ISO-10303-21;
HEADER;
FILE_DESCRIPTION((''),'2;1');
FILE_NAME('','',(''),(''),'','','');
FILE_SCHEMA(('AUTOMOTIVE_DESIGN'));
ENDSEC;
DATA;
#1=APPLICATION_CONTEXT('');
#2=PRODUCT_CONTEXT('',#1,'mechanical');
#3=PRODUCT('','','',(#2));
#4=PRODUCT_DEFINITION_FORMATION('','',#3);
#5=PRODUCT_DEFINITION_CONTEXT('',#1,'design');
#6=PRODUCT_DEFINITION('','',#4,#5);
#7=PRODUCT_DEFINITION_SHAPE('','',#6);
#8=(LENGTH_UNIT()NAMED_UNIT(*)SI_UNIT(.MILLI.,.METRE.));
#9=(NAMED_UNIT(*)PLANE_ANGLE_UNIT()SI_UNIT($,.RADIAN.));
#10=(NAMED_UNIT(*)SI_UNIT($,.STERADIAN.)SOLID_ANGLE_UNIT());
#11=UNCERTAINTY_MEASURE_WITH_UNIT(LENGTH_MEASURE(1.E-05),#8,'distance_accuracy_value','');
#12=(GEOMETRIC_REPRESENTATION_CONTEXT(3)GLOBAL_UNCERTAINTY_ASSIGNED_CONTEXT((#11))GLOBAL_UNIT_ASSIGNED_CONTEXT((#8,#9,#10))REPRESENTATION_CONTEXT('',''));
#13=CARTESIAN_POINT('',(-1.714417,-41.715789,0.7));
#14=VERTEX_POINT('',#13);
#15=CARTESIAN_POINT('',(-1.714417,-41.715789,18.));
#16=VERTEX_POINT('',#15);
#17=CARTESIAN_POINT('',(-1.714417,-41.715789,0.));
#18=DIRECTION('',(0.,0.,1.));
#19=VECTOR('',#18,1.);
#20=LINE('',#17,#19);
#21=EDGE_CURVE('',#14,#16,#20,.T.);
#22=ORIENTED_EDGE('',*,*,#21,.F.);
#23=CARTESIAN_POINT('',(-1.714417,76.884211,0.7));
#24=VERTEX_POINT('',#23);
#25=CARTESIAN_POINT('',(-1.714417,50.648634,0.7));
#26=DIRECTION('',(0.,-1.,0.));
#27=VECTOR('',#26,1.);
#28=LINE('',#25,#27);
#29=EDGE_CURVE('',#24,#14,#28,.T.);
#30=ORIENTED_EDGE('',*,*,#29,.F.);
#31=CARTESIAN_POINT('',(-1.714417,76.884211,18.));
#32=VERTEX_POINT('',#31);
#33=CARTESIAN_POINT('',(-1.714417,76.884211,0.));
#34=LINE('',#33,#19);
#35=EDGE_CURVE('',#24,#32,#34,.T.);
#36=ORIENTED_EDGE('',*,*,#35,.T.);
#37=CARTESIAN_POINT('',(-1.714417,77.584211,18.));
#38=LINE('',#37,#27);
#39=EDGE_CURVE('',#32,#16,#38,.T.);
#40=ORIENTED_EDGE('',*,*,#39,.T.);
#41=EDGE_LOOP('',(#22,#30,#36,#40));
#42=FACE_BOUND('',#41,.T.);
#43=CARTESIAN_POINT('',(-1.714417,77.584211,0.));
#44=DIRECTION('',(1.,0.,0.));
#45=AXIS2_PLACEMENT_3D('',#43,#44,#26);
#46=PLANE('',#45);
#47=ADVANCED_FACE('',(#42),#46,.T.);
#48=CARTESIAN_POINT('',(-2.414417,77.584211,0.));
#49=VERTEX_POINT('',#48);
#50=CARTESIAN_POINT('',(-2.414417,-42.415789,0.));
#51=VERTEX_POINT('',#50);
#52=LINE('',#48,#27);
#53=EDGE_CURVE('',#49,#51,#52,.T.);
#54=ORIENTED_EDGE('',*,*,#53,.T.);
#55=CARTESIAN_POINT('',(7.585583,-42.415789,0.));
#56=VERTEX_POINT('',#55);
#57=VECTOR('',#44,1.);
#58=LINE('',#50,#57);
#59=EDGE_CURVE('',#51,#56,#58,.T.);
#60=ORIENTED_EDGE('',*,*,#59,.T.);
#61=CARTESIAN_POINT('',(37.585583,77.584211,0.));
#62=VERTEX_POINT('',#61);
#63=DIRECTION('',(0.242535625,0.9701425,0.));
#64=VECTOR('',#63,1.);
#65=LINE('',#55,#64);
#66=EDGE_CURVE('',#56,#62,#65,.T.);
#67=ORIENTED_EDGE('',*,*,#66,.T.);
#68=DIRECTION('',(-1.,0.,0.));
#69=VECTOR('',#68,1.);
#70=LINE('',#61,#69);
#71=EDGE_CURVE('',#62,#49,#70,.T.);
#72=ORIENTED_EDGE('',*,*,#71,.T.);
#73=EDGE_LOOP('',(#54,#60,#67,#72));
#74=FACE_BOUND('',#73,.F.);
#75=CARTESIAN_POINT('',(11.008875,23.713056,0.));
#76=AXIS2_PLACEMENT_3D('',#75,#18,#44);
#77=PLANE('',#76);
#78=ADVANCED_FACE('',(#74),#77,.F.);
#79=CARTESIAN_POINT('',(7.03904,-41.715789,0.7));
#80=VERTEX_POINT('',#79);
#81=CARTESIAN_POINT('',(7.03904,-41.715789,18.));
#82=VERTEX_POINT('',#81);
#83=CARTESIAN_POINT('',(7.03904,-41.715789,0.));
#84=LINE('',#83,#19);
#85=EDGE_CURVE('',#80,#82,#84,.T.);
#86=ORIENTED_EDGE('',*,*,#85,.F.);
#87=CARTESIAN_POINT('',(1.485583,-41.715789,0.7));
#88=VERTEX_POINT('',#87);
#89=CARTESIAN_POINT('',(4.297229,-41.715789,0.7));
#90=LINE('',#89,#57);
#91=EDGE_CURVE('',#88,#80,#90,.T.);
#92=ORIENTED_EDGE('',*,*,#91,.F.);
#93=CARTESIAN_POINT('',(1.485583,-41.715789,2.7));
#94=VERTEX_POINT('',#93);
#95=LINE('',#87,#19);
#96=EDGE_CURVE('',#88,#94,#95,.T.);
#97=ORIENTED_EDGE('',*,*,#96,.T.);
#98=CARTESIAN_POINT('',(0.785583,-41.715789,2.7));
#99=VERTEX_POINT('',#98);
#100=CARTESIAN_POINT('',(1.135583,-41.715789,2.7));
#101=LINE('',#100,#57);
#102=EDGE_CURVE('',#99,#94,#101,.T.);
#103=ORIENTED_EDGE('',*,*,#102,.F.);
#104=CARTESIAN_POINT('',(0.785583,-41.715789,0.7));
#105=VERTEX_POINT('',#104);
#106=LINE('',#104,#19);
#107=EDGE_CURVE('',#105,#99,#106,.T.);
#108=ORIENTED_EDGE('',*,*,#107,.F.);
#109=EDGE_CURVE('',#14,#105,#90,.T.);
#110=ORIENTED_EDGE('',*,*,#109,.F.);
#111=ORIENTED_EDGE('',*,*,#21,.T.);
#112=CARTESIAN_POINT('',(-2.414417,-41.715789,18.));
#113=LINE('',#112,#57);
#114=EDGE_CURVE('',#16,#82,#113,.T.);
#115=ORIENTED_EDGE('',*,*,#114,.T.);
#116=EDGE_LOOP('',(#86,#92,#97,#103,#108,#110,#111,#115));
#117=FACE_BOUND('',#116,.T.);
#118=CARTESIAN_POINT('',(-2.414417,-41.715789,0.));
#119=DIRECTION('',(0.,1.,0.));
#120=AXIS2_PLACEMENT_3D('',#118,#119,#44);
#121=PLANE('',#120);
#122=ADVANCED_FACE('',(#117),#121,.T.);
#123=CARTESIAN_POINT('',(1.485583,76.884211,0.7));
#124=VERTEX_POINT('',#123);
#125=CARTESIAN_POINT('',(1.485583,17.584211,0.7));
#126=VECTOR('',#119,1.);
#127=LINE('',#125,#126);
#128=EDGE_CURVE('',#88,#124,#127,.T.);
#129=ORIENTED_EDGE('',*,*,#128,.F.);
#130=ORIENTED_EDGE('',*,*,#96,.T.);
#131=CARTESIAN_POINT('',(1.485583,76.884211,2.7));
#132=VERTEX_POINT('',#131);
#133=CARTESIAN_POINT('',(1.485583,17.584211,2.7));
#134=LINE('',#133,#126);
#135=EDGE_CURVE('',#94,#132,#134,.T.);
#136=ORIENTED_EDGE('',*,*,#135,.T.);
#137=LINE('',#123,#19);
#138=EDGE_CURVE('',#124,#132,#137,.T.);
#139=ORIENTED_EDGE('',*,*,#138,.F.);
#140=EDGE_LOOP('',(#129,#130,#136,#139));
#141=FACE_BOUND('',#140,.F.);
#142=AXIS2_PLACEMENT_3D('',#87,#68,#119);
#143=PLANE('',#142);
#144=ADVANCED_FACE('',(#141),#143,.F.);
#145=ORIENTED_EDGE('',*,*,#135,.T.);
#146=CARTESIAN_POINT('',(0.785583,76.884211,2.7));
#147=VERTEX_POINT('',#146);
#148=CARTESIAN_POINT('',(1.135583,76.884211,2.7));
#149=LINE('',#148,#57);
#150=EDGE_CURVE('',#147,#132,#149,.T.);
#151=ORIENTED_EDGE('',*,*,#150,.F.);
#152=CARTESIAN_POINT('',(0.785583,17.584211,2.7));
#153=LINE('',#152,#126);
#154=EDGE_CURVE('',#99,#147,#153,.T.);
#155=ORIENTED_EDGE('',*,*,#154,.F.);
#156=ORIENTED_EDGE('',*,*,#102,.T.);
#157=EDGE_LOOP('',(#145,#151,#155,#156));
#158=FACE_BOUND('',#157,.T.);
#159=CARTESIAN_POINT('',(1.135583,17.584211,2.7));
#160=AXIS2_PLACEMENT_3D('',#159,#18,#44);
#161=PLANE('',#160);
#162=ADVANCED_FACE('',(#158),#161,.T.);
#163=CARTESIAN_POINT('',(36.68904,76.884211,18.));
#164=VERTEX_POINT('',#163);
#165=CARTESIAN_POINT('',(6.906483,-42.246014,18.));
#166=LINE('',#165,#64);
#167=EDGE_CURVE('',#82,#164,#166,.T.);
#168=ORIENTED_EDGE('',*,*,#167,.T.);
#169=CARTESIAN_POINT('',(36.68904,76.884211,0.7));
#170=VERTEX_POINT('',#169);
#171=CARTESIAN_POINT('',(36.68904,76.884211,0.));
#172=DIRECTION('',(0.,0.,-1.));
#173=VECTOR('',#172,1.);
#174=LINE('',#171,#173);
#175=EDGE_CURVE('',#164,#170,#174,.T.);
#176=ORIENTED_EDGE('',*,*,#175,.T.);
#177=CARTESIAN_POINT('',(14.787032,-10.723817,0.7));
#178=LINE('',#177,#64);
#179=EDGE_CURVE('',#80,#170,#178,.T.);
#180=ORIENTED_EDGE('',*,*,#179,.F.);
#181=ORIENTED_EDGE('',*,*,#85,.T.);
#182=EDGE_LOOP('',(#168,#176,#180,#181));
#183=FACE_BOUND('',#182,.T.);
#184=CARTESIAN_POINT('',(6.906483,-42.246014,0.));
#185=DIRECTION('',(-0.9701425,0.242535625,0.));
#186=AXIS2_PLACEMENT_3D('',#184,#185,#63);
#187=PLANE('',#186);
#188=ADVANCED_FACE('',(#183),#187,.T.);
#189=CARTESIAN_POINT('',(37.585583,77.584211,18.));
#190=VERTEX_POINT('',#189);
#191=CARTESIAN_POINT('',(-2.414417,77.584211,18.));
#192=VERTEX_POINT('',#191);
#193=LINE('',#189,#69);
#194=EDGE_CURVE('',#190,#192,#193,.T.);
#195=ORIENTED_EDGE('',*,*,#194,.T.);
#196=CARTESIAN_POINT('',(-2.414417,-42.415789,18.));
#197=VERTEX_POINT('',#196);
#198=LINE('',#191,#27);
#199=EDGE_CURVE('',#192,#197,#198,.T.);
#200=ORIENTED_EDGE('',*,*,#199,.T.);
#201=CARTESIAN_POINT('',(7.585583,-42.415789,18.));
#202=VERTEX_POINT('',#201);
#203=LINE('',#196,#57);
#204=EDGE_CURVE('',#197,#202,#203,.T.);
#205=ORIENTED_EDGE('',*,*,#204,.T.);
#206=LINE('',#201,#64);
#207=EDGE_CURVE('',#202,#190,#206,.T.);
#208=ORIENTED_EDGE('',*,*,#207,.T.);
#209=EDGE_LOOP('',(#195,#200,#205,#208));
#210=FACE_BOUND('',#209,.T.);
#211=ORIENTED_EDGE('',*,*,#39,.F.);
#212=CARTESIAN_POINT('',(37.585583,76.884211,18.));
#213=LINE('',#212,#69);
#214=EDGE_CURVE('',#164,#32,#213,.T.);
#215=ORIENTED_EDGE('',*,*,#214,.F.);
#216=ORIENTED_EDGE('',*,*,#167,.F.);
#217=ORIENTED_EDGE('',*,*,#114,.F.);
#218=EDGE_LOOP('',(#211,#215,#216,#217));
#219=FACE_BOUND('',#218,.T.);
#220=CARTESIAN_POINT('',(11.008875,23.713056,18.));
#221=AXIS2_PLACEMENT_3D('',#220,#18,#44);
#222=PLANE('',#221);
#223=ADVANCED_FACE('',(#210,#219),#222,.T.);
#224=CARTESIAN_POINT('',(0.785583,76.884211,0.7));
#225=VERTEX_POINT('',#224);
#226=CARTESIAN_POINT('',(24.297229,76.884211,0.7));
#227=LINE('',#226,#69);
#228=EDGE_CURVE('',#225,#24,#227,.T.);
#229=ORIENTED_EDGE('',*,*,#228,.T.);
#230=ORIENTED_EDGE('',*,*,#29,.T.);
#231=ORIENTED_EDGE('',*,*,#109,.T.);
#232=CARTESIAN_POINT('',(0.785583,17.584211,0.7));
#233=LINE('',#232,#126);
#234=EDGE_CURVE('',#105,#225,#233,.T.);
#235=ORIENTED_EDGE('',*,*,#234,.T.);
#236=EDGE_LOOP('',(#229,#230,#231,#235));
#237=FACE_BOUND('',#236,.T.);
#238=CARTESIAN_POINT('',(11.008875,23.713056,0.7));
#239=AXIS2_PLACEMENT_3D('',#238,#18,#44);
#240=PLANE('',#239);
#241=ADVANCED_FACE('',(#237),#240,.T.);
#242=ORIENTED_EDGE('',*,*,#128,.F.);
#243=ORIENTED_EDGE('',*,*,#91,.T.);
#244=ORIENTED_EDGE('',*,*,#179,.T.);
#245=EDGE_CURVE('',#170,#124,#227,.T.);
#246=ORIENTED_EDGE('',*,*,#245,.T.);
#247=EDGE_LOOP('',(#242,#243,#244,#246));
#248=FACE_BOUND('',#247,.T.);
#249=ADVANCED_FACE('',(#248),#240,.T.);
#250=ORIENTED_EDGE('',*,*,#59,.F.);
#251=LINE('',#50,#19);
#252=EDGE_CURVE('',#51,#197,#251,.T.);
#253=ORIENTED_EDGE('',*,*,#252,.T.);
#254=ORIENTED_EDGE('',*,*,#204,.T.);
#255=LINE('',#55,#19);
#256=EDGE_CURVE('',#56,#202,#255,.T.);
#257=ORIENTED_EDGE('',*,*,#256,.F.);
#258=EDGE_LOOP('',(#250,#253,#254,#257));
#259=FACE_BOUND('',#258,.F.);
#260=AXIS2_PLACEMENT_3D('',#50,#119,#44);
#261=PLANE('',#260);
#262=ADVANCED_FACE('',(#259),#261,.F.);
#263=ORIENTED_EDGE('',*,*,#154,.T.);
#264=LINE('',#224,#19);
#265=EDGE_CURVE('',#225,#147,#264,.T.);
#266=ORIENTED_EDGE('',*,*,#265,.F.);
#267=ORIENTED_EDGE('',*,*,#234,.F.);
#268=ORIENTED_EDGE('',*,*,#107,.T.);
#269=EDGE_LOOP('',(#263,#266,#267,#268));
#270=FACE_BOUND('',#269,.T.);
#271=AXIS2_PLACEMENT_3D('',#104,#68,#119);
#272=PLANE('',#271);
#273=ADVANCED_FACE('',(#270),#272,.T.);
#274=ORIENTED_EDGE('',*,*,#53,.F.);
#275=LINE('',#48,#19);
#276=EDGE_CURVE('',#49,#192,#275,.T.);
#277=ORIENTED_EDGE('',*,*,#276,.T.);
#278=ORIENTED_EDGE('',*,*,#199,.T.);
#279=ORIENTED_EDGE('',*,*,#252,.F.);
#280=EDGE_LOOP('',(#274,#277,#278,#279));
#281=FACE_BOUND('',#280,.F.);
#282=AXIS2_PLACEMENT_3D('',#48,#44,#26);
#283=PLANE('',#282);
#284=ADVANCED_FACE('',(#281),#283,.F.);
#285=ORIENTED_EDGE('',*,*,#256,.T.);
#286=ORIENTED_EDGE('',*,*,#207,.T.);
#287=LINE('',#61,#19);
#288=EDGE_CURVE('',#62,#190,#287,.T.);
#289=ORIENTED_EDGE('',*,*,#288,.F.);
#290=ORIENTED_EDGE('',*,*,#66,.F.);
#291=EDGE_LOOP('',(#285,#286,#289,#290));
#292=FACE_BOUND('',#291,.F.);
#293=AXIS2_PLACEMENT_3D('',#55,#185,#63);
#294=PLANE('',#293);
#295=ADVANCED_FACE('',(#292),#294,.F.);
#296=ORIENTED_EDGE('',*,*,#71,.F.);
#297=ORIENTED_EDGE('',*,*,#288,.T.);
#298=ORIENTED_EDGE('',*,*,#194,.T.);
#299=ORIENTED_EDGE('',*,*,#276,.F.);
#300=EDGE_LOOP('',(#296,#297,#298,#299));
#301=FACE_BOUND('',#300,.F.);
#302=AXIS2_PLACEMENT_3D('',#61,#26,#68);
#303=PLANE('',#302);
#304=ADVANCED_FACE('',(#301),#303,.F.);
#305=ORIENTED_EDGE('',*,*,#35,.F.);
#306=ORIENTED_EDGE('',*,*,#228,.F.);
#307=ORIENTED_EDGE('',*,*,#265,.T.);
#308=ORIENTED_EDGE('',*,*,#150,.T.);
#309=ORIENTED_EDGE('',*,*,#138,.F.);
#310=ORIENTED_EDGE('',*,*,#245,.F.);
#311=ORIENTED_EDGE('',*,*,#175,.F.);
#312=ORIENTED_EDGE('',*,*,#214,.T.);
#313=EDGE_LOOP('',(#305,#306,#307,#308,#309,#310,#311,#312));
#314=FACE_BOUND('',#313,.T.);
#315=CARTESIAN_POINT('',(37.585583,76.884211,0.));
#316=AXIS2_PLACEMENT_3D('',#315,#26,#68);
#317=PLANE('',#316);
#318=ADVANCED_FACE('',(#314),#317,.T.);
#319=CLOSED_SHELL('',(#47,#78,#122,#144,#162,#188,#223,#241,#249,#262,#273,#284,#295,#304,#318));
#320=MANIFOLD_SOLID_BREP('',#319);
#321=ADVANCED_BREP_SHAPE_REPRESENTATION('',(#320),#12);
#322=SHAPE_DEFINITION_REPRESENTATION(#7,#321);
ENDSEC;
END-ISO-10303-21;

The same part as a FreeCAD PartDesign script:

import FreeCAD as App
import Part
import Sketcher
Q = App.Units.Quantity


def faces_at(feature, points):
    """Names of the faces that lie closest to the given points."""
    faces = feature.Shape.Faces
    near = lambda p: min(range(len(faces)), key=lambda i: faces[i].distToShape(Part.Vertex(*p))[0])
    return sorted({f"Face{near(p) + 1}" for p in points})

doc = App.newDocument("Part")
body = doc.addObject("PartDesign::Body", "Body")

sketch1 = body.newObject("Sketcher::SketchObject", "Sketch")
sketch1.AttachmentSupport = (doc.getObject("XY_Plane"), [""])
sketch1.MapMode = "FlatFace"
sketch1.addGeometry([
    Part.LineSegment(App.Vector(38, 78, 0), App.Vector(-2, 78, 0)),
    Part.LineSegment(App.Vector(-2, 78, 0), App.Vector(-2, -42, 0)),
    Part.LineSegment(App.Vector(-2, -42, 0), App.Vector(8, -42, 0)),
    Part.LineSegment(App.Vector(8, -42, 0), App.Vector(38, 78, 0)),
], False)
sketch1.addConstraint([
    Sketcher.Constraint("Coincident", 0, 2, 1, 1),
    Sketcher.Constraint("Coincident", 1, 2, 2, 1),
    Sketcher.Constraint("Coincident", 2, 2, 3, 1),
    Sketcher.Constraint("Coincident", 3, 2, 0, 1),
    Sketcher.Constraint("Horizontal", 0),
    Sketcher.Constraint("Vertical", 1),
    Sketcher.Constraint("Horizontal", 2),
    Sketcher.Constraint("DistanceX", 0, 2, 0, 1, Q("40 mm")),
    Sketcher.Constraint("DistanceX", 2, 1, 2, 2, Q("10 mm")),
    Sketcher.Constraint("DistanceY", 1, 2, 1, 1, Q("120 mm")),
    Sketcher.Constraint("DistanceY", -1, 1, 0, 2, Q("77.584211 mm")),
    Sketcher.Constraint("DistanceX", 0, 2, -1, 1, Q("2.414417 mm")),
])
pad1 = body.newObject("PartDesign::Pad", "Pad")
pad1.Profile = sketch1
pad1.Length = 18
doc.recompute()

thickness = body.newObject("PartDesign::Thickness", "Thickness")
thickness.Base = (pad1, faces_at(pad1, [(17.586, 17.584, 18)]))
thickness.Value = 0.7
thickness.Reversed = True
thickness.Join = "Arc"

sketch2 = body.newObject("Sketcher::SketchObject", "Sketch001")
sketch2.AttachmentSupport = (doc.getObject("XY_Plane"), [""])
sketch2.MapMode = "FlatFace"
sketch2.AttachmentOffset = App.Placement(App.Vector(0, 0, 0.7), App.Rotation())
sketch2.addGeometry([
    Part.LineSegment(App.Vector(0.8, 76.9, 0), App.Vector(0.8, -41.7, 0)),
    Part.LineSegment(App.Vector(0.8, -41.7, 0), App.Vector(1.5, -41.7, 0)),
    Part.LineSegment(App.Vector(1.5, -41.7, 0), App.Vector(1.5, 76.9, 0)),
    Part.LineSegment(App.Vector(1.5, 76.9, 0), App.Vector(0.8, 76.9, 0)),
], False)
sketch2.addConstraint([
    Sketcher.Constraint("Coincident", 0, 2, 1, 1),
    Sketcher.Constraint("Coincident", 1, 2, 2, 1),
    Sketcher.Constraint("Coincident", 2, 2, 3, 1),
    Sketcher.Constraint("Coincident", 3, 2, 0, 1),
    Sketcher.Constraint("Vertical", 0),
    Sketcher.Constraint("Horizontal", 1),
    Sketcher.Constraint("Vertical", 2),
    Sketcher.Constraint("Horizontal", 3),
    Sketcher.Constraint("DistanceX", 1, 1, 1, 2, Q("0.7 mm")),
    Sketcher.Constraint("DistanceY", 0, 2, 0, 1, Q("118.6 mm")),
    Sketcher.Constraint("DistanceY", 0, 2, -1, 1, Q("41.715789 mm")),
    Sketcher.Constraint("DistanceX", -1, 1, 0, 2, Q("0.785583 mm")),
])
pad2 = body.newObject("PartDesign::Pad", "Pad001")
pad2.Profile = sketch2
pad2.Length = 2

doc.recompute()
